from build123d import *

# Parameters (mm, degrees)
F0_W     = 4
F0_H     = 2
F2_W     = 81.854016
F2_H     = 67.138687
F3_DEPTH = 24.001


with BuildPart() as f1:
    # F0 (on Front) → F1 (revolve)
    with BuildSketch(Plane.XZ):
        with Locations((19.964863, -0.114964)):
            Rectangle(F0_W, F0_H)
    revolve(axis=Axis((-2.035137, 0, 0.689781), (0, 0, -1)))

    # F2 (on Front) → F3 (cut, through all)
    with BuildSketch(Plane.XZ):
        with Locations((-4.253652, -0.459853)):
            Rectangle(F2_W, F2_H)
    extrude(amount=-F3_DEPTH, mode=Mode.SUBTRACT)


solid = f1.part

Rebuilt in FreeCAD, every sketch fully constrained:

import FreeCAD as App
import Part
import Sketcher


def add_polygon(sketch, points):
    """Adds a closed chain of lines whose ends are joined by coincident constraints."""
    first, n = sketch.GeometryCount, len(points)
    for a, b in zip(points, points[1:] + points[:1]):
        sketch.addGeometry(Part.LineSegment(App.Vector(*a, 0), App.Vector(*b, 0)), False)
    for i in range(n):
        sketch.addConstraint(Sketcher.Constraint("Coincident", first + i, 2, first + (i + 1) % n, 1))

doc = App.newDocument("Part")
body = doc.addObject("PartDesign::Body", "Body")

# Sketch on XZ plane
sketch1 = body.newObject("Sketcher::SketchObject", "Sketch")
sketch1.AttachmentSupport = (doc.getObject("XZ_Plane"), [""])
sketch1.MapMode = "FlatFace"
add_polygon(sketch1, [(18, 0.9), (18, -1.1), (22, -1.1), (22, 0.9)])  # lines 0-3
sketch1.addGeometry(Part.LineSegment(App.Vector(-2, 0.9, 0), App.Vector(-2, -1.1, 0)), True)  # axis
sketch1.addConstraint([
    Sketcher.Constraint("Vertical", 0),
    Sketcher.Constraint("Horizontal", 1),
    Sketcher.Constraint("Vertical", 2),
    Sketcher.Constraint("Horizontal", 3),
    Sketcher.Constraint("Vertical", 4),
    Sketcher.Constraint("Horizontal", 3, 2, 4, 1),
    Sketcher.Constraint("Horizontal", 1, 2, 4, 2),
    Sketcher.Constraint("DistanceX", 1, 1, 1, 2, 4.0),
    Sketcher.Constraint("DistanceY", 0, 2, 0, 1, 2.0),
    Sketcher.Constraint("DistanceX", 4, 1, 3, 2, 20.0),
    Sketcher.Constraint("DistanceX", -1, 1, 0, 2, 17.964863),
    Sketcher.Constraint("DistanceY", 0, 2, -1, 1, 1.114964),
])
revolution = body.newObject("PartDesign::Revolution", "Revolution")
revolution.Profile = sketch1
revolution.ReferenceAxis = (sketch1, ["Axis0"])
revolution.Angle = 360

# Sketch on XZ plane
sketch2 = body.newObject("Sketcher::SketchObject", "Sketch001")
sketch2.AttachmentSupport = (doc.getObject("XZ_Plane"), [""])
sketch2.MapMode = "FlatFace"
add_polygon(sketch2, [(-45, 33), (-45, -34), (37, -34), (37, 33)])  # lines 0-3
sketch2.addConstraint([
    Sketcher.Constraint("Vertical", 0),
    Sketcher.Constraint("Horizontal", 1),
    Sketcher.Constraint("Vertical", 2),
    Sketcher.Constraint("Horizontal", 3),
    Sketcher.Constraint("DistanceX", 1, 1, 1, 2, 81.854016),
    Sketcher.Constraint("DistanceY", 0, 2, 0, 1, 67.138687),
    Sketcher.Constraint("DistanceX", 0, 2, -1, 1, 45.18066),
    Sketcher.Constraint("DistanceY", -1, 1, 2, 2, 33.10949),
])
pocket1 = body.newObject("PartDesign::Pocket", "Pocket")
pocket1.Profile = sketch2
pocket1.Type = "ThroughAll"

doc.recompute()
